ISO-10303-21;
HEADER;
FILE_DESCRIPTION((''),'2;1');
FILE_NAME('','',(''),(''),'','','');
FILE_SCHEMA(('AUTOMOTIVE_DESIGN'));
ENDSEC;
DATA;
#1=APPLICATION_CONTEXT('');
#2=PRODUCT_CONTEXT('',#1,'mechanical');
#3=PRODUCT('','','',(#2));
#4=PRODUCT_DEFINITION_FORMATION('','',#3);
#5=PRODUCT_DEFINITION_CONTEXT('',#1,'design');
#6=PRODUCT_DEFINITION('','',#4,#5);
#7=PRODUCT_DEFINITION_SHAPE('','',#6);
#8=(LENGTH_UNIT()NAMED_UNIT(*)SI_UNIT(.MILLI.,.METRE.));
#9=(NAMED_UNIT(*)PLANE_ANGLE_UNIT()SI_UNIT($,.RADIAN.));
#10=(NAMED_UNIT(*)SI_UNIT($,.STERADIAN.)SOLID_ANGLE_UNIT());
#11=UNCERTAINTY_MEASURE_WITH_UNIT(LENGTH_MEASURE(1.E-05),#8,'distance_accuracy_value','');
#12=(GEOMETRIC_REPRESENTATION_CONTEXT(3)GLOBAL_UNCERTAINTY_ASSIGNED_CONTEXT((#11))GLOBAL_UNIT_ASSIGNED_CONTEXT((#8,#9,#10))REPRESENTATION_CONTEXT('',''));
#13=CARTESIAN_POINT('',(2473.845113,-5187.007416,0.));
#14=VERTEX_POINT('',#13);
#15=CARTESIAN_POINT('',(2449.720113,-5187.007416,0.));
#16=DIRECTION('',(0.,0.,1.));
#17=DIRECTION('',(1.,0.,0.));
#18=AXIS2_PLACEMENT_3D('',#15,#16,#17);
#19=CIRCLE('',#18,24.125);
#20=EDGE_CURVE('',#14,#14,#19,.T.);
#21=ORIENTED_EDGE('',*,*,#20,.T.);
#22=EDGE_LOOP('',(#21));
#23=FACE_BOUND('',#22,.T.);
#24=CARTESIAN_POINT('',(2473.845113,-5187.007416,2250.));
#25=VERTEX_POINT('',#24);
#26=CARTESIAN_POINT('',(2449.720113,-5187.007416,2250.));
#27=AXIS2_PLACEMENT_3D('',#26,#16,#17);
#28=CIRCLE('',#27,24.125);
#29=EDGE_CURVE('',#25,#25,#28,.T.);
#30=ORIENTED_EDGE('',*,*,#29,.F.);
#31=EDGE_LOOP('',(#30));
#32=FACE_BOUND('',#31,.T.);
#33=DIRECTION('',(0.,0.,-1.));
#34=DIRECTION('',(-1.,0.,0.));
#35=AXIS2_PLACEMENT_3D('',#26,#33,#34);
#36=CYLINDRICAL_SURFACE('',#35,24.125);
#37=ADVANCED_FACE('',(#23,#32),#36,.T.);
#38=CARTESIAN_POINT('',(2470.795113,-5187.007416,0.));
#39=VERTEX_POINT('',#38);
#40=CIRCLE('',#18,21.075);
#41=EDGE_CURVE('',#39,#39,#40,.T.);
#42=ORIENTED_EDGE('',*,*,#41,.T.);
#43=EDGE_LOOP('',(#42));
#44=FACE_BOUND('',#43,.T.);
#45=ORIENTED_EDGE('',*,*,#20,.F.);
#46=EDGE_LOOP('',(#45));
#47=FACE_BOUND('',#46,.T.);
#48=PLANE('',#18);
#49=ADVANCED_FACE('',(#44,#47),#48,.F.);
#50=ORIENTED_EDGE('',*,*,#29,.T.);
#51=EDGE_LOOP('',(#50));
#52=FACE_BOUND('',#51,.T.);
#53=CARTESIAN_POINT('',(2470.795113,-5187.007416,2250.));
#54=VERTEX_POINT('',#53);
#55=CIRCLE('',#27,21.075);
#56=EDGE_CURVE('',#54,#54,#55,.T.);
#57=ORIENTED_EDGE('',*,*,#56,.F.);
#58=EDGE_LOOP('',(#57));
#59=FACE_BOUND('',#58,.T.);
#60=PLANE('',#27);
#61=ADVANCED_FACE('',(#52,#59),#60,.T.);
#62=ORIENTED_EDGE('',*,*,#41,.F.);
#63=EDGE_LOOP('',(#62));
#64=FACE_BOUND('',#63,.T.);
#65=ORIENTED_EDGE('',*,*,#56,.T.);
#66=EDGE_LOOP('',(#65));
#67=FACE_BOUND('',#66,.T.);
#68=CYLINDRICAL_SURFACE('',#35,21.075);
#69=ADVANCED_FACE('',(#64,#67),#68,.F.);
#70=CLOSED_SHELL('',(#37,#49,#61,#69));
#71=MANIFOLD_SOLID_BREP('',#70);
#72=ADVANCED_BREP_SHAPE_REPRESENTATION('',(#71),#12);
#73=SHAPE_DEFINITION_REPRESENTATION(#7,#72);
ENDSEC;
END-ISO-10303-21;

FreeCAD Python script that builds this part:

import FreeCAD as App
import Part
import Sketcher

V = App.Vector
Q = App.Units.Quantity

doc = App.newDocument("Part")
body = doc.addObject("PartDesign::Body", "Body")

# Sketch on XY plane
sketch1 = body.newObject("Sketcher::SketchObject", "Sketch")
sketch1.AttachmentSupport = (doc.getObject("XY_Plane"), [""])
sketch1.MapMode = "FlatFace"
sketch1.addGeometry([
    Part.Circle(V(2449.720113, -5187.007416, 0), V(0, 0, 1), 24.125),
    Part.Circle(V(2449.720113, -5187.007416, 0), V(0, 0, 1), 21.075),
], False)
sketch1.addConstraint([
    Sketcher.Constraint("Coincident", 1, 3, 0, 3),
    Sketcher.Constraint("Diameter", 0, Q("48.25 mm")),
    Sketcher.Constraint("Diameter", 1, Q("42.15 mm")),
    Sketcher.Constraint("DistanceX", -1, 1, 0, 3, Q("2449.720113 mm")),
    Sketcher.Constraint("DistanceY", 0, 3, -1, 1, Q("5187.007416 mm")),
])
pad1 = body.newObject("PartDesign::Pad", "Pad")
pad1.Profile = sketch1
pad1.Length = 2250

doc.recompute()
